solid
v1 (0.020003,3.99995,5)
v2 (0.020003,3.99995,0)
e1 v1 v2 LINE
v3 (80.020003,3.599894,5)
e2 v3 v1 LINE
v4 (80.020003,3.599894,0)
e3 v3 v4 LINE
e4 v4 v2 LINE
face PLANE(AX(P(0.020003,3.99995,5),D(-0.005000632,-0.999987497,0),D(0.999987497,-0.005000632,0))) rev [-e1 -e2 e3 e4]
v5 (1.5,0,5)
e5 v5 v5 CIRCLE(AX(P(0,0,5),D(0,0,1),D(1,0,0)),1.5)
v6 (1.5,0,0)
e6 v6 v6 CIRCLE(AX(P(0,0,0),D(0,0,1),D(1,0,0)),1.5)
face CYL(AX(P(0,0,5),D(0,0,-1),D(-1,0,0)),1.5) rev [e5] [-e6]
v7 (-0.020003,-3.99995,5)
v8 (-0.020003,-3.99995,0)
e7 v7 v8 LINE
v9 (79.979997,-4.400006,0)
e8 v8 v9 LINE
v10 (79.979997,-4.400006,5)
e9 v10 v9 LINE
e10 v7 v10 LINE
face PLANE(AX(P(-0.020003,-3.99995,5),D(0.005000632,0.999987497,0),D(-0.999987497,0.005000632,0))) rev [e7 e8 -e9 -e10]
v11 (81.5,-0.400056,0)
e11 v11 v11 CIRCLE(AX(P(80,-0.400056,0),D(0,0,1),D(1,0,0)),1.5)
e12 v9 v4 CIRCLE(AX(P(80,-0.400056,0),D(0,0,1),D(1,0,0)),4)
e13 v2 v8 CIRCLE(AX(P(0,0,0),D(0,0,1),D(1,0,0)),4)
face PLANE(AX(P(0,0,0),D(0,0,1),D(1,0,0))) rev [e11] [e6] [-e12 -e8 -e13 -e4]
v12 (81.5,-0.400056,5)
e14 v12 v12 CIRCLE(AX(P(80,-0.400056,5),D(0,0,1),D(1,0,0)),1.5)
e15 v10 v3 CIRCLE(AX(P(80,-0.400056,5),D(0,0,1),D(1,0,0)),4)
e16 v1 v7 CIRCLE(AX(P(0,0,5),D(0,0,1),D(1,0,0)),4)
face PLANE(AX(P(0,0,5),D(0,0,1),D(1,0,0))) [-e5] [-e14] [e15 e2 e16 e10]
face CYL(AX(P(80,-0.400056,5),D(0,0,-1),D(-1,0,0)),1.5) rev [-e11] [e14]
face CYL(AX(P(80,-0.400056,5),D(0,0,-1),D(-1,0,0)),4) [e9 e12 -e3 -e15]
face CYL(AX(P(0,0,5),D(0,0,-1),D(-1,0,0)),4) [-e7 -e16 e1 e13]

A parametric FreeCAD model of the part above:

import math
import FreeCAD as App
import Part
import Sketcher
from FreeCAD import Vector
Q = App.Units.Quantity

doc = App.newDocument("Part")
params = doc.addObject("Spreadsheet::Sheet", "Params")
for row, (alias, value) in enumerate([
    ("sketch1_diameter", "3 mm"),
    ("sketch1_radius", "4 mm"),
    ("pad1_length", "5 mm"),
], start=1):
    params.set(f"A{row}", alias)
    params.set(f"B{row}", "=" + value)
    params.setAlias(f"B{row}", alias)

body = doc.addObject("PartDesign::Body", "Body")

# Sketch on XY plane
sketch1 = body.newObject("Sketcher::SketchObject", "Sketch")
sketch1.AttachmentSupport = (doc.getObject("XY_Plane"), [""])
sketch1.MapMode = "FlatFace"
sketch1.addGeometry([
    Part.LineSegment(Vector(80, 3.6, 0), Vector(0, 4, 0)),  # 0
    Part.ArcOfCircle(Part.Circle(Vector(0, 0, 0), Vector(0, 0, 1), 4), math.radians(90), math.radians(270)),  # 1
    Part.LineSegment(Vector(0, -4, 0), Vector(80, -4.4, 0)),  # 2
    Part.ArcOfCircle(Part.Circle(Vector(80, -0.4, 0), Vector(0, 0, 1), 4), math.radians(-90), math.radians(90)),  # 3
    Part.Circle(Vector(80, -0.4, 0), Vector(0, 0, 1), 1.5),  # 4
    Part.Circle(Vector(0, 0, 0), Vector(0, 0, 1), 1.5),  # 5
], False)
sketch1.addConstraint([
    Sketcher.Constraint("Tangent", 0, 2, 1, 1),
    Sketcher.Constraint("Tangent", 1, 2, 2, 1),
    Sketcher.Constraint("Tangent", 2, 2, 3, 1),
    Sketcher.Constraint("Tangent", 3, 2, 0, 1),
    Sketcher.Constraint("Coincident", 1, 3, -1, 1),
    Sketcher.Constraint("Coincident", 5, 3, -1, 1),
    Sketcher.Constraint("Coincident", 4, 3, 3, 3),
    Sketcher.Constraint("Equal", 1, 3),
    Sketcher.Constraint("Equal", 4, 5),
    Sketcher.Constraint("Diameter", 4, Q("3 mm")),
    Sketcher.Constraint("Radius", 1, Q("4 mm")),
    Sketcher.Constraint("DistanceX", -1, 1, 3, 3, Q("80 mm")),
    Sketcher.Constraint("DistanceY", 3, 3, -1, 1, Q("0.400056 mm")),
])
sketch1.setExpression("Constraints[9]", "Params.sketch1_diameter")
sketch1.setExpression("Constraints[10]", "Params.sketch1_radius")
pad1 = body.newObject("PartDesign::Pad", "Pad")
pad1.Profile = sketch1
pad1.setExpression("Length", "Params.pad1_length")

doc.recompute()
